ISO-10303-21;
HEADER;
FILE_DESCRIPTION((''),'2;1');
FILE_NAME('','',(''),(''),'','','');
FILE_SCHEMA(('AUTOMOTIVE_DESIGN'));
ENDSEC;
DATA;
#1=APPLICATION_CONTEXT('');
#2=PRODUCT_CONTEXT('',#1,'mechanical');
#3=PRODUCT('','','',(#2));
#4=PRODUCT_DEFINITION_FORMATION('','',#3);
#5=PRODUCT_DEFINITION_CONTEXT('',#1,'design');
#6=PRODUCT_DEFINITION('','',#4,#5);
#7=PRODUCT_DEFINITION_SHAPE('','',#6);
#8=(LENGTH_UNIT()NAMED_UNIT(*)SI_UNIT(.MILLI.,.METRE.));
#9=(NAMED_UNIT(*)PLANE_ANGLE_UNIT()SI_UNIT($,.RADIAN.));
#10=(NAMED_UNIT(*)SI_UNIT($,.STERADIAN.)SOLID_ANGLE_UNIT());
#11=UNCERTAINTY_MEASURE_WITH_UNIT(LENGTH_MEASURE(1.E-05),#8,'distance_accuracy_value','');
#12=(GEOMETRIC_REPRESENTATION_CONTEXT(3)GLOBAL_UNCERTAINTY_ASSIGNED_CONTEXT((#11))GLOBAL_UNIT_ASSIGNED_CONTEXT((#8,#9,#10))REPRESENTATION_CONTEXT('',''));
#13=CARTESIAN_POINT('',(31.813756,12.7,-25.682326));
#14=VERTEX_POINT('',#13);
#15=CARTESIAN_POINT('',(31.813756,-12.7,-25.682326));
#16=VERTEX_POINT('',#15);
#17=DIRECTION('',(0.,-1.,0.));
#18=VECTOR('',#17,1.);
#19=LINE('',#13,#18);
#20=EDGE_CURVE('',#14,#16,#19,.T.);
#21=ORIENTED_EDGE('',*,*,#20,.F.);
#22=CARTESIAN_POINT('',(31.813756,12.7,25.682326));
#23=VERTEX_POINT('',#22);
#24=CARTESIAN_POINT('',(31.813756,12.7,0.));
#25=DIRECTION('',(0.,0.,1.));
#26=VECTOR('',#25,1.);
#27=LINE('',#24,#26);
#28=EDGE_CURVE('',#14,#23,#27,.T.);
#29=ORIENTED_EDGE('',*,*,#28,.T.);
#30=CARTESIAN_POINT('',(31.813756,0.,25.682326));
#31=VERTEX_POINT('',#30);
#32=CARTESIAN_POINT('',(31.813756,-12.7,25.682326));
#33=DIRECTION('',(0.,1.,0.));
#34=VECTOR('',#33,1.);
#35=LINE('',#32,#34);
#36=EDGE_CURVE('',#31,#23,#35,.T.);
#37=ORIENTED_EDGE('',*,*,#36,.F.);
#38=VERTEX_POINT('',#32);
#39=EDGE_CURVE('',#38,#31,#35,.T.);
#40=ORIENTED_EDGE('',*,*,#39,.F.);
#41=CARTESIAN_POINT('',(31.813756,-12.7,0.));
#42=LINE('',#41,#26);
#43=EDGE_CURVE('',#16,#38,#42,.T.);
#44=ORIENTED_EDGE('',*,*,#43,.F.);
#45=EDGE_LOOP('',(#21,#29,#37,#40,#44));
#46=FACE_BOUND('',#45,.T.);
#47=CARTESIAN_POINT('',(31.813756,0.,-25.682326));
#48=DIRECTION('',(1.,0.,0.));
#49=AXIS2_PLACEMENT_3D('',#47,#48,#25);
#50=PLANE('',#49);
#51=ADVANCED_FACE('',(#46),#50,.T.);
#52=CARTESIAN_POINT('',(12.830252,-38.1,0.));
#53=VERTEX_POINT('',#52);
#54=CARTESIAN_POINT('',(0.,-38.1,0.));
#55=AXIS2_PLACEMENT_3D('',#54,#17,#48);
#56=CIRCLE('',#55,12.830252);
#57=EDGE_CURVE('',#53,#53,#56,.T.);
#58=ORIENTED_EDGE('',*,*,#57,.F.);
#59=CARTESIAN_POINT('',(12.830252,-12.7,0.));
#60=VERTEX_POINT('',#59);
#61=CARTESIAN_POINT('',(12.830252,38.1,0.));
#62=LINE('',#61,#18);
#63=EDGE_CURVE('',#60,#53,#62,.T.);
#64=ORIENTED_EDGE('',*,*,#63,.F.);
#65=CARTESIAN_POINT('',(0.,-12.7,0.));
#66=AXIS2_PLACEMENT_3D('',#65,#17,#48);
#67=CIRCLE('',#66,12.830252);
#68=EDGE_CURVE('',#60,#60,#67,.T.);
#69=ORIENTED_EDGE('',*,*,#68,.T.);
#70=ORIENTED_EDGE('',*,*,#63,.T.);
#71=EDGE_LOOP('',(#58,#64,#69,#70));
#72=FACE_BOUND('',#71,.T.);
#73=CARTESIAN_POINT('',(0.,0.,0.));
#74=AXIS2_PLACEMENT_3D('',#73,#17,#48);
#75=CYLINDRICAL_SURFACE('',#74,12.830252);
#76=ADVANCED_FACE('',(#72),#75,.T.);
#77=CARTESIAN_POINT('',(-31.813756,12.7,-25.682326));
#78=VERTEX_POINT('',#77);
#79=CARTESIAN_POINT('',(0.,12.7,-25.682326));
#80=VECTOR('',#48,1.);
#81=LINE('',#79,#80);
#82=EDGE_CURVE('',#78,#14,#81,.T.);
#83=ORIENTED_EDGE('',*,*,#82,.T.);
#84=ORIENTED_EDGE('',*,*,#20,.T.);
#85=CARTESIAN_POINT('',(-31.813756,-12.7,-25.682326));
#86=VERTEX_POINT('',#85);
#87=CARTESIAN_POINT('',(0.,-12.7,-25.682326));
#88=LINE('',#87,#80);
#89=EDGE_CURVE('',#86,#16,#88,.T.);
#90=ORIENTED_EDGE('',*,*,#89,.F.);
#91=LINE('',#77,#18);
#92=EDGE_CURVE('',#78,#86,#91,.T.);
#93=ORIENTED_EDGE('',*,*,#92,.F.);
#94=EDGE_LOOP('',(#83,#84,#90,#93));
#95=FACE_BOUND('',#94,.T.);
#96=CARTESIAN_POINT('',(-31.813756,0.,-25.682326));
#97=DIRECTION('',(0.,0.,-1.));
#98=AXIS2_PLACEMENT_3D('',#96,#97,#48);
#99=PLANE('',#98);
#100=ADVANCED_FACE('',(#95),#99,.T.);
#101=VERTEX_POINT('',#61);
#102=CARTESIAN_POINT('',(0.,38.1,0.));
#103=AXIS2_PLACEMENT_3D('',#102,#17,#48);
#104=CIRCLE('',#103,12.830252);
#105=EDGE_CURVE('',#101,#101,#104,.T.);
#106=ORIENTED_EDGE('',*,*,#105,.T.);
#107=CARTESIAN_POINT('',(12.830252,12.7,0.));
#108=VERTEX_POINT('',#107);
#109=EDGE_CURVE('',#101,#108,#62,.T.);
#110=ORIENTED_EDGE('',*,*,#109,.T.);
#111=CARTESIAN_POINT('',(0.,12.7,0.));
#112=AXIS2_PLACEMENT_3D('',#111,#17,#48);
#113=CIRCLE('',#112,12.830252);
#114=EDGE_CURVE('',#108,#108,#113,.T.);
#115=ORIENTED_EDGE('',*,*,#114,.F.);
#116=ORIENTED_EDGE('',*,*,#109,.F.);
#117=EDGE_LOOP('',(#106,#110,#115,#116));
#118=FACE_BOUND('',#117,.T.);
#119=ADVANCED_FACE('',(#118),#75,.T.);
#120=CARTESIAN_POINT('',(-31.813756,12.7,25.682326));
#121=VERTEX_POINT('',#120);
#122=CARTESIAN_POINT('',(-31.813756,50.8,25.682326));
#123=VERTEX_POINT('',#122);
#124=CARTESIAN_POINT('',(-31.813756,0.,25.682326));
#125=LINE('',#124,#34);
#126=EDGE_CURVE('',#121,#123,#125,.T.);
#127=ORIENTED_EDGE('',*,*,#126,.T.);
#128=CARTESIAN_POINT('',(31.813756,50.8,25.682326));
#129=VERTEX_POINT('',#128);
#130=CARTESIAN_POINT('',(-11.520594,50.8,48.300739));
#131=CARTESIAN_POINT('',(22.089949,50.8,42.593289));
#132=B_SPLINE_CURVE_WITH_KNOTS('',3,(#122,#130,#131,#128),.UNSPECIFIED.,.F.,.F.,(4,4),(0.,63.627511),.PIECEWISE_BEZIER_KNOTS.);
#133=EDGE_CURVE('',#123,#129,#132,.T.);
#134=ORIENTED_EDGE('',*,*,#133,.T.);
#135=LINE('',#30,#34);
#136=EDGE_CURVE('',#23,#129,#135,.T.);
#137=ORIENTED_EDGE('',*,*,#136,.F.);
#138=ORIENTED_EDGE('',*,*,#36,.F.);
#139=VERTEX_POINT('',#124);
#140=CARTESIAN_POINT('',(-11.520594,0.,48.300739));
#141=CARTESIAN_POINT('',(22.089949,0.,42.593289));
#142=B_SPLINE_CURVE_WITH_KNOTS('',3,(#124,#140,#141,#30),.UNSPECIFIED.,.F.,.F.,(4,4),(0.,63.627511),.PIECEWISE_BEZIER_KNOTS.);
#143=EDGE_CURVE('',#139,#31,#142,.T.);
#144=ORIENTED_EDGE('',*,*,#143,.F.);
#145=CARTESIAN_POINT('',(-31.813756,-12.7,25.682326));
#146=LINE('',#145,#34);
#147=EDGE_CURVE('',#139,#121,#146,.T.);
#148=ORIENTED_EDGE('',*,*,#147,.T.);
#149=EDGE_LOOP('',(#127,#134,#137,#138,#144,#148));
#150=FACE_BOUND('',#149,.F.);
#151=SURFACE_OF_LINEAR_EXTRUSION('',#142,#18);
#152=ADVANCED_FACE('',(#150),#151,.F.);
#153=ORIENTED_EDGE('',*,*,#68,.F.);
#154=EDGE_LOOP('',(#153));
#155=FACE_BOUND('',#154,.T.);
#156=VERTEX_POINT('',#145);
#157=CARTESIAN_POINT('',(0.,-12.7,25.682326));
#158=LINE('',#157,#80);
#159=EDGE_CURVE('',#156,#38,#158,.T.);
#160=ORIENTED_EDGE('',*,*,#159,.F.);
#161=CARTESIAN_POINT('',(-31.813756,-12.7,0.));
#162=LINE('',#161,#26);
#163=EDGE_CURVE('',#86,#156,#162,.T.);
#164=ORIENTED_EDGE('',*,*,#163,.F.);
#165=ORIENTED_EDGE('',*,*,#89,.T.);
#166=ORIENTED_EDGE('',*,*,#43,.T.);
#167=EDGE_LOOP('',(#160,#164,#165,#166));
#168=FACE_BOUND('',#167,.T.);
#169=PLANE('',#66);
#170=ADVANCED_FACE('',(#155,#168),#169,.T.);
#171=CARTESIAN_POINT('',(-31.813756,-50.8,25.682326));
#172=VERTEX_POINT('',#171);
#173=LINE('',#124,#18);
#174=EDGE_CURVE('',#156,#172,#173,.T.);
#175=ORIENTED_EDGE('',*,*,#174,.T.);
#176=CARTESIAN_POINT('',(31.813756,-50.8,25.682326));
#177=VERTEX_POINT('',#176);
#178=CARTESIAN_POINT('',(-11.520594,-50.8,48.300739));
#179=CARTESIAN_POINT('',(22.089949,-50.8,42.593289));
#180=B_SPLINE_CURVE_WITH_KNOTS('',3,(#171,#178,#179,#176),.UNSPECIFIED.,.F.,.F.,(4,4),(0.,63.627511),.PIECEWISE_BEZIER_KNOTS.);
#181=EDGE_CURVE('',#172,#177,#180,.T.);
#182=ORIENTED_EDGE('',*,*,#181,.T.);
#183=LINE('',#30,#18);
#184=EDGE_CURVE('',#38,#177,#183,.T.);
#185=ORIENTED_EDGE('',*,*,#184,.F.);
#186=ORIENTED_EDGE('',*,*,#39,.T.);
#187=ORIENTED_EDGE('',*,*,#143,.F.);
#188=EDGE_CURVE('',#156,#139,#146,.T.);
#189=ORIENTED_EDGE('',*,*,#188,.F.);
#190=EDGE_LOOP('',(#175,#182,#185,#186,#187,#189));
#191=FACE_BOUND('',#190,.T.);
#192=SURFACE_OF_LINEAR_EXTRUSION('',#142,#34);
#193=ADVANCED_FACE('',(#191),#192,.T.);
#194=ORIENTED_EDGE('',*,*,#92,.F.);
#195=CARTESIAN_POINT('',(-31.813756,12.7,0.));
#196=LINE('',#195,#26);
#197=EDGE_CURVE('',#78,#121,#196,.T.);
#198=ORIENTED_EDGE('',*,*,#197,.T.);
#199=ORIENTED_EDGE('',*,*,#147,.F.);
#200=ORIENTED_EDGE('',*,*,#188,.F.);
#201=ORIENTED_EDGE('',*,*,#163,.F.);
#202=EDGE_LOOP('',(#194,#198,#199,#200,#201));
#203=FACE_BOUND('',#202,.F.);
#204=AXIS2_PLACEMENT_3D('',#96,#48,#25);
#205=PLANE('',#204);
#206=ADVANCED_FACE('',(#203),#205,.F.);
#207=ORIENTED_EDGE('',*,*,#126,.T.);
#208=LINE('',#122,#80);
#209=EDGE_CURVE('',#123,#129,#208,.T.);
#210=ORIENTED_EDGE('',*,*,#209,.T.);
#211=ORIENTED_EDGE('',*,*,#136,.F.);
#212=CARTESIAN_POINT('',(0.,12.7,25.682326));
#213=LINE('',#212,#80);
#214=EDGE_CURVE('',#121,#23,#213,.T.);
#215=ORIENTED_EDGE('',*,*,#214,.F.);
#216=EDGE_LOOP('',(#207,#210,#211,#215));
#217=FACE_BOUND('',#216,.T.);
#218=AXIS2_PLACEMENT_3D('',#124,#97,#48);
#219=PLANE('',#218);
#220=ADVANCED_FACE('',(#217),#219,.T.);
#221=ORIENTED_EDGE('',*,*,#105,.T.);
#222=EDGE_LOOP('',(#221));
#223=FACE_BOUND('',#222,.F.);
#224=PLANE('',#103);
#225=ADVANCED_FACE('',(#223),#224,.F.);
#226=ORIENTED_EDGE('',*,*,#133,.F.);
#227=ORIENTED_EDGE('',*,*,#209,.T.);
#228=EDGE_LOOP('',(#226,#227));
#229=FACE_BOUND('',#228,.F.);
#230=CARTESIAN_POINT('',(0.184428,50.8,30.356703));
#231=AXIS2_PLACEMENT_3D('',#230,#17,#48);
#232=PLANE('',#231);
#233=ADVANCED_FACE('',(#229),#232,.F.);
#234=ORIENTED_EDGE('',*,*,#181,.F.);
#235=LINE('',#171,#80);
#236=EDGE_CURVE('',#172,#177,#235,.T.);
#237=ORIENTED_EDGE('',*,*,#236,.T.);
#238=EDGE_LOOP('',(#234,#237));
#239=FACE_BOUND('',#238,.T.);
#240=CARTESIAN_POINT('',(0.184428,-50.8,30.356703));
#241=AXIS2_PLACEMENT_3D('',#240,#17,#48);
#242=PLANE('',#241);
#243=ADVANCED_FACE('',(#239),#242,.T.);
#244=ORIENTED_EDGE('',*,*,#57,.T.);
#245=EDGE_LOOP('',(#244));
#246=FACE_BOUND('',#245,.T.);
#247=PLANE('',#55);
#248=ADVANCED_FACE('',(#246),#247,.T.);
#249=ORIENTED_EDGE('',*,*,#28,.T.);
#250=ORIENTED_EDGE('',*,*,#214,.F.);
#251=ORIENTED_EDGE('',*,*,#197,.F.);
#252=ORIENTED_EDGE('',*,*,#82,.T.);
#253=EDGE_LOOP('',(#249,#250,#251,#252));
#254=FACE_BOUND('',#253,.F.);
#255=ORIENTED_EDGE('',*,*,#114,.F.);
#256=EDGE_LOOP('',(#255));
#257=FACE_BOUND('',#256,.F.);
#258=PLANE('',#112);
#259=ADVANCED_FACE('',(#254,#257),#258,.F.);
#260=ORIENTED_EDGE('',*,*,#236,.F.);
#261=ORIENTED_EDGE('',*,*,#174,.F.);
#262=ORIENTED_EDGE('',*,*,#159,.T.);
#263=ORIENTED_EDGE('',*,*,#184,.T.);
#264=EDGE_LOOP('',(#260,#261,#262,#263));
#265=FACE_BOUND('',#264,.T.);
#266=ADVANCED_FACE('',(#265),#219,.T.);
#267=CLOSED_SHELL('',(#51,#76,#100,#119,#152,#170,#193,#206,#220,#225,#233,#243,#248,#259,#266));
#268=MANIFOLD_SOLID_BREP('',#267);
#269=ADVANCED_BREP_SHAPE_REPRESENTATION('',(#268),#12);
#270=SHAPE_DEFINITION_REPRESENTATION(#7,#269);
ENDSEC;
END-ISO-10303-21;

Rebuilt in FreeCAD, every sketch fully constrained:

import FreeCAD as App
import Part
import Sketcher

V = App.Vector
Q = App.Units.Quantity


def add_polygon(sketch, points):
    """Adds a closed chain of lines whose ends are joined by coincident constraints."""
    first, n = sketch.GeometryCount, len(points)
    for a, b in zip(points, points[1:] + points[:1]):
        sketch.addGeometry(Part.LineSegment(App.Vector(*a, 0), App.Vector(*b, 0)), False)
    for i in range(n):
        sketch.addConstraint(Sketcher.Constraint("Coincident", first + i, 2, first + (i + 1) % n, 1))

doc = App.newDocument("Part")
body = doc.addObject("PartDesign::Body", "Body")

sketch1 = body.newObject("Sketcher::SketchObject", "Sketch")
sketch1.AttachmentSupport = (doc.getObject("XZ_Plane"), [""])
sketch1.MapMode = "FlatFace"
add_polygon(sketch1, [(-31.813756, 25.682326), (-31.813756, -25.682326), (31.813756, -25.682326), (31.813756, 25.682326)])
sketch1.addGeometry(Part.Circle(V(0, 0, 0), V(0, 0, 1), 12.830252), False)
sketch1.addConstraint(Sketcher.Constraint("Vertical", 0))
sketch1.addConstraint(Sketcher.Constraint("Horizontal", 1))
sketch1.addConstraint(Sketcher.Constraint("Vertical", 2))
sketch1.addConstraint(Sketcher.Constraint("Horizontal", 3))
sketch1.addConstraint(Sketcher.Constraint("Coincident", 4, 3, -1, 1))
sketch1.addConstraint(Sketcher.Constraint("Symmetric", 0, 2, 2, 2, -1, 1))
sketch1.addConstraint(Sketcher.Constraint("Diameter", 4, Q("25.660504 mm")))
sketch1.addConstraint(Sketcher.Constraint("DistanceX", 1, 1, 1, 2, Q("63.627512 mm")))
sketch1.addConstraint(Sketcher.Constraint("DistanceY", 0, 2, 0, 1, Q("51.364652 mm")))
pad1 = body.newObject("PartDesign::Pad", "Pad")
pad1.Profile = sketch1
pad1.Length = Q("1 in")
pad1.Midplane = True

sketch2 = body.newObject("Sketcher::SketchObject", "Sketch001")
sketch2.AttachmentSupport = (doc.getObject("XZ_Plane"), [""])
sketch2.MapMode = "FlatFace"
sketch2.addGeometry(Part.LineSegment(V(-31.813756, 25.682326, 0), V(31.813756, 25.682326, 0)), False)
sketch2.addGeometry(Part.BSplineCurve([V(-31.813756, 25.682326, 0), V(-11.520594, 48.300739, 0), V(22.089949, 42.593289, 0), V(31.813756, 25.682326, 0)], [4, 4], [0, 63.627511], False, 3, [1, 1, 1, 1], False), False)
sketch2.addConstraint(Sketcher.Constraint("Block", 1))
sketch2.addConstraint(Sketcher.Constraint("Coincident", 0, 1, 1, 1))
sketch2.addConstraint(Sketcher.Constraint("Coincident", 1, 2, 0, 2))
pad2 = body.newObject("PartDesign::Pad", "Pad001")
pad2.Profile = sketch2
pad2.Length = Q("4 in")
pad2.Midplane = True

sketch3 = body.newObject("Sketcher::SketchObject", "Sketch002")
sketch3.AttachmentSupport = (doc.getObject("XZ_Plane"), [""])
sketch3.MapMode = "FlatFace"
sketch3.addGeometry(Part.Circle(V(0, 0, 0), V(0, 0, 1), 12.830252), False)
sketch3.addConstraint(Sketcher.Constraint("Coincident", 0, 3, -1, 1))
sketch3.addConstraint(Sketcher.Constraint("Diameter", 0, Q("25.660504 mm")))
pad3 = body.newObject("PartDesign::Pad", "Pad002")
pad3.Profile = sketch3
pad3.Length = Q("3 in")
pad3.Midplane = True

doc.recompute()
